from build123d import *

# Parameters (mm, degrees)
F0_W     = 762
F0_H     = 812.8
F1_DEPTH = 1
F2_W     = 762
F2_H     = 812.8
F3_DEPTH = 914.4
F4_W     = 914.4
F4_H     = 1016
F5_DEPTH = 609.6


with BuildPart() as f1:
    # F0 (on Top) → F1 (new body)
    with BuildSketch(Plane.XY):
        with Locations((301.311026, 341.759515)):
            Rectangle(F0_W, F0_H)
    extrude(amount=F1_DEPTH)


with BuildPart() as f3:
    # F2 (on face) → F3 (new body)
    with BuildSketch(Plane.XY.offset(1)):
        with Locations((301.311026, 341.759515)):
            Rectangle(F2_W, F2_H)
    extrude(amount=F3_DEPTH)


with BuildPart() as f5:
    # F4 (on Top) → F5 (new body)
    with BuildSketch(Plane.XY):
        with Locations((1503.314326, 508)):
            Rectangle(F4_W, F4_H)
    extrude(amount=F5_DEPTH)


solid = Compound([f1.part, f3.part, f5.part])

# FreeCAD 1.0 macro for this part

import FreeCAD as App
import Part
import Sketcher
Q = App.Units.Quantity


def add_polygon(sketch, points):
    """Adds a closed chain of lines whose ends are joined by coincident constraints."""
    first, n = sketch.GeometryCount, len(points)
    for a, b in zip(points, points[1:] + points[:1]):
        sketch.addGeometry(Part.LineSegment(App.Vector(*a, 0), App.Vector(*b, 0)), False)
    for i in range(n):
        sketch.addConstraint(Sketcher.Constraint("Coincident", first + i, 2, first + (i + 1) % n, 1))

doc = App.newDocument("Part")
body = doc.addObject("PartDesign::Body", "Body")

# Sketch on XY plane
sketch1 = body.newObject("Sketcher::SketchObject", "Sketch")
sketch1.AttachmentSupport = (doc.getObject("XY_Plane"), [""])
sketch1.MapMode = "FlatFace"
add_polygon(sketch1, [(-80, 748), (-80, -65), (682, -65), (682, 748)])  # lines 0-3
sketch1.addConstraint(Sketcher.Constraint("Vertical", 0))
sketch1.addConstraint(Sketcher.Constraint("Horizontal", 1))
sketch1.addConstraint(Sketcher.Constraint("Vertical", 2))
sketch1.addConstraint(Sketcher.Constraint("Horizontal", 3))
sketch1.addConstraint(Sketcher.Constraint("DistanceX", 1, 1, 1, 2, Q("30 in")))
sketch1.addConstraint(Sketcher.Constraint("DistanceY", 0, 2, 0, 1, Q("32 in")))
sketch1.addConstraint(Sketcher.Constraint("DistanceX", 0, 2, -1, 1, Q("79.688974 mm")))
sketch1.addConstraint(Sketcher.Constraint("DistanceY", 0, 2, -1, 1, Q("64.640485 mm")))
pad1 = body.newObject("PartDesign::Pad", "Pad")
pad1.Profile = sketch1
pad1.Length = 1
body2 = doc.addObject("PartDesign::Body", "Body001")

# Sketch on XY plane
sketch2 = body2.newObject("Sketcher::SketchObject", "Sketch001")
sketch2.AttachmentSupport = (doc.getObject("XY_Plane001"), [""])
sketch2.MapMode = "FlatFace"
sketch2.AttachmentOffset = App.Placement(App.Vector(0, 0, 1), App.Rotation())
add_polygon(sketch2, [(-80, 748), (-80, -65), (682, -65), (682, 748)])  # lines 0-3
sketch2.addConstraint(Sketcher.Constraint("Vertical", 0))
sketch2.addConstraint(Sketcher.Constraint("Horizontal", 1))
sketch2.addConstraint(Sketcher.Constraint("Vertical", 2))
sketch2.addConstraint(Sketcher.Constraint("Horizontal", 3))
sketch2.addConstraint(Sketcher.Constraint("DistanceX", 1, 1, 1, 2, Q("30 in")))
sketch2.addConstraint(Sketcher.Constraint("DistanceY", 0, 2, 0, 1, Q("32 in")))
sketch2.addConstraint(Sketcher.Constraint("DistanceX", 0, 2, -1, 1, Q("79.688974 mm")))
sketch2.addConstraint(Sketcher.Constraint("DistanceY", 0, 2, -1, 1, Q("64.640485 mm")))
pad2 = body2.newObject("PartDesign::Pad", "Pad001")
pad2.Profile = sketch2
pad2.Length = Q("36 in")
body3 = doc.addObject("PartDesign::Body", "Body002")

# Sketch on XY plane
sketch3 = body3.newObject("Sketcher::SketchObject", "Sketch002")
sketch3.AttachmentSupport = (doc.getObject("XY_Plane002"), [""])
sketch3.MapMode = "FlatFace"
add_polygon(sketch3, [(1046, 1016), (1046, 0), (1961, 0), (1961, 1016)])  # lines 0-3
sketch3.addConstraint(Sketcher.Constraint("Vertical", 0))
sketch3.addConstraint(Sketcher.Constraint("Horizontal", 1))
sketch3.addConstraint(Sketcher.Constraint("Vertical", 2))
sketch3.addConstraint(Sketcher.Constraint("Horizontal", 3))
sketch3.addConstraint(Sketcher.Constraint("PointOnObject", 0, 2, -1))
sketch3.addConstraint(Sketcher.Constraint("DistanceX", 1, 1, 1, 2, Q("36 in")))
sketch3.addConstraint(Sketcher.Constraint("DistanceY", 0, 2, 0, 1, Q("40 in")))
sketch3.addConstraint(Sketcher.Constraint("DistanceX", -1, 1, 0, 2, Q("1046.114326 mm")))
pad3 = body3.newObject("PartDesign::Pad", "Pad002")
pad3.Profile = sketch3
pad3.Length = Q("24 in")

doc.recompute()
